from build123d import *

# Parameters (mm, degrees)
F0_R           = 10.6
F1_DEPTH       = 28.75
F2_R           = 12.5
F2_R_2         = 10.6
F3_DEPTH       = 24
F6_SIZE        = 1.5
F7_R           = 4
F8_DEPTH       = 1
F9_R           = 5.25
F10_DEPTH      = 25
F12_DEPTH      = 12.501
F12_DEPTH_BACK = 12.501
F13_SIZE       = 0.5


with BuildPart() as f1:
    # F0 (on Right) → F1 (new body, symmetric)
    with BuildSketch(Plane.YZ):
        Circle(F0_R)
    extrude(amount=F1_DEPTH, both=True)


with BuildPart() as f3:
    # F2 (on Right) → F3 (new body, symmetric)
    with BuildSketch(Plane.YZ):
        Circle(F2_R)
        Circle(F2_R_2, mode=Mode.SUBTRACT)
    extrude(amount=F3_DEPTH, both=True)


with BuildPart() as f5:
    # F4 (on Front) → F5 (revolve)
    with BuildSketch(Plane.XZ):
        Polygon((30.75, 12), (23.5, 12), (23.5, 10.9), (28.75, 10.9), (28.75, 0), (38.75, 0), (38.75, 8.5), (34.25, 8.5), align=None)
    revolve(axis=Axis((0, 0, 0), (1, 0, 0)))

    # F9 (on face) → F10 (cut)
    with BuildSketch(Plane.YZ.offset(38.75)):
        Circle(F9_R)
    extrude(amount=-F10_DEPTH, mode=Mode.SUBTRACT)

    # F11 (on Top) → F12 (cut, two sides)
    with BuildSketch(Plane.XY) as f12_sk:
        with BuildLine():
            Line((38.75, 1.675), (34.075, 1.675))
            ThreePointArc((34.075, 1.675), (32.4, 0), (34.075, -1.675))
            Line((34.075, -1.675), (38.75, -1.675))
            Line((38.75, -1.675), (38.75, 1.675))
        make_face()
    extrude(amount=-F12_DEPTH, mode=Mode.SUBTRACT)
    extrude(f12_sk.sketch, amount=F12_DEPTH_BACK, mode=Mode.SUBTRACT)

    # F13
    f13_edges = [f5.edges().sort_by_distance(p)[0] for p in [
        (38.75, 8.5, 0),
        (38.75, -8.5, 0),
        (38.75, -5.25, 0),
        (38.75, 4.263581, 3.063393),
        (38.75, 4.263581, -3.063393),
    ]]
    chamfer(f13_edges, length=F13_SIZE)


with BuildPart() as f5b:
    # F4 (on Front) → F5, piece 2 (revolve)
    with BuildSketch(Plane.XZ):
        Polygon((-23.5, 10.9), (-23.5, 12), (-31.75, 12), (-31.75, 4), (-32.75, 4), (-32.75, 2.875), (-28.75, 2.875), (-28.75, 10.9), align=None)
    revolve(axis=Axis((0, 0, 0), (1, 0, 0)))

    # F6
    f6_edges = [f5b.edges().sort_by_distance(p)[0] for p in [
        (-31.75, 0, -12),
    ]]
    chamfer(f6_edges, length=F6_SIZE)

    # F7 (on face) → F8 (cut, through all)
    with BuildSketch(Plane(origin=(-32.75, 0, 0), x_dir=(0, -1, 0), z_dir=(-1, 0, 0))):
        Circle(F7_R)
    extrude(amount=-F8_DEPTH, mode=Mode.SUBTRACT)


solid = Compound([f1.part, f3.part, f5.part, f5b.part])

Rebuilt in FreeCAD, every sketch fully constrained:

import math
import FreeCAD as App
import Part
import Sketcher

V = App.Vector
Q = App.Units.Quantity


def edges_at(feature, points):
    """Names of the edges that pass closest to the given points."""
    edges = feature.Shape.Edges
    near = lambda p: min(range(len(edges)), key=lambda i: edges[i].distToShape(Part.Vertex(*p))[0])
    return sorted({f"Edge{near(p) + 1}" for p in points})


def add_polygon(sketch, points):
    """Adds a closed chain of lines whose ends are joined by coincident constraints."""
    first, n = sketch.GeometryCount, len(points)
    for a, b in zip(points, points[1:] + points[:1]):
        sketch.addGeometry(Part.LineSegment(App.Vector(*a, 0), App.Vector(*b, 0)), False)
    for i in range(n):
        sketch.addConstraint(Sketcher.Constraint("Coincident", first + i, 2, first + (i + 1) % n, 1))

doc = App.newDocument("Part")
params = doc.addObject("Spreadsheet::Sheet", "Params")
for row, (alias, value) in enumerate([
    ("sketch1_diameter", "21.2 mm"),
    ("pad1_length", "57.5 mm"),
    ("sketch2_diameter", "25 mm"),
    ("sketch2_diameter2", "21.2 mm"),
    ("pad2_length", "48 mm"),
    ("sketch3_width", "10 mm"),
    ("sketch3_width2", "4.5 mm"),
    ("sketch3_height", "1.1 mm"),
    ("sketch3_height2", "10.9 mm"),
    ("sketch3_height3", "8.5 mm"),
    ("revolution_angle", "360 deg"),
    ("sketch4_diameter", "10.5 mm"),
    ("pocket1_length", "25 mm"),
    ("chamfer_size", "0.5 mm"),
    ("sketch6_width", "1 mm"),
    ("sketch6_width2", "4 mm"),
    ("sketch6_height", "8 mm"),
    ("sketch6_height2", "1.1 mm"),
    ("sketch6_width3", "8.25 mm"),
    ("revolution2_angle", "360 deg"),
    ("chamfer2_size", "1.5 mm"),
    ("sketch7_diameter", "8 mm"),
    ("pocket3_length", "1 mm"),
], start=1):
    params.set(f"A{row}", alias)
    params.set(f"B{row}", "=" + value)
    params.setAlias(f"B{row}", alias)

body = doc.addObject("PartDesign::Body", "Body")

# Sketch on YZ plane
sketch1 = doc.addObject("Sketcher::SketchObject", "Sketch")
body.addObject(sketch1)
sketch1.AttachmentSupport = (doc.YZ_Plane, [""])
sketch1.MapMode = "FlatFace"
sketch1.addGeometry(Part.Circle(V(0, 0, 0), V(0, 0, 1), 11), False)
sketch1.addConstraint(Sketcher.Constraint("Coincident", 0, 3, -1, 1))
sketch1.addConstraint(Sketcher.Constraint("Diameter", 0, 21.2))
sketch1.setExpression("Constraints[1]", "Params.sketch1_diameter")
pad1 = doc.addObject("PartDesign::Pad", "Pad")
body.addObject(pad1)
pad1.Profile = sketch1
pad1.setExpression("Length", "Params.pad1_length")
pad1.Midplane = True
body2 = doc.addObject("PartDesign::Body", "Body001")

# Sketch on YZ plane
sketch2 = doc.addObject("Sketcher::SketchObject", "Sketch001")
body2.addObject(sketch2)
sketch2.AttachmentSupport = (doc.getObject("YZ_Plane001"), [""])
sketch2.MapMode = "FlatFace"
sketch2.addGeometry(Part.Circle(V(0, 0, 0), V(0, 0, 1), 12), False)
sketch2.addGeometry(Part.Circle(V(0, 0, 0), V(0, 0, 1), 11), False)
sketch2.addConstraint(Sketcher.Constraint("Coincident", 0, 3, -1, 1))
sketch2.addConstraint(Sketcher.Constraint("Coincident", 1, 3, -1, 1))
sketch2.addConstraint(Sketcher.Constraint("Diameter", 0, 25.0))
sketch2.addConstraint(Sketcher.Constraint("Diameter", 1, 21.2))
sketch2.setExpression("Constraints[2]", "Params.sketch2_diameter")
sketch2.setExpression("Constraints[3]", "Params.sketch2_diameter2")
pad2 = doc.addObject("PartDesign::Pad", "Pad001")
body2.addObject(pad2)
pad2.Profile = sketch2
pad2.setExpression("Length", "Params.pad2_length")
pad2.Midplane = True
body3 = doc.addObject("PartDesign::Body", "Body002")

# Sketch on XZ plane
sketch3 = doc.addObject("Sketcher::SketchObject", "Sketch002")
body3.addObject(sketch3)
sketch3.AttachmentSupport = (doc.getObject("XZ_Plane002"), [""])
sketch3.MapMode = "FlatFace"
add_polygon(sketch3, [(30.8, 12), (23.5, 12), (23.5, 10.9), (28.8, 10.9), (28.8, 0), (38.8, 0), (38.8, 8.5), (34.2, 8.5)])  # lines 0-7
sketch3.addConstraint(Sketcher.Constraint("Horizontal", 0))
sketch3.addConstraint(Sketcher.Constraint("Vertical", 1))
sketch3.addConstraint(Sketcher.Constraint("Horizontal", 2))
sketch3.addConstraint(Sketcher.Constraint("Vertical", 3))
sketch3.addConstraint(Sketcher.Constraint("Horizontal", 4))
sketch3.addConstraint(Sketcher.Constraint("Vertical", 5))
sketch3.addConstraint(Sketcher.Constraint("Horizontal", 6))
sketch3.addConstraint(Sketcher.Constraint("PointOnObject", 3, 2, -1))
sketch3.addConstraint(Sketcher.Constraint("DistanceX", 4, 1, 4, 2, 10.0))
sketch3.addConstraint(Sketcher.Constraint("Angle", 7, Q("135 deg")))
sketch3.addConstraint(Sketcher.Constraint("DistanceX", 6, 2, 6, 1, 4.5))
sketch3.addConstraint(Sketcher.Constraint("DistanceY", 1, 2, 1, 1, 1.1))
sketch3.addConstraint(Sketcher.Constraint("DistanceY", 3, 2, 3, 1, 10.9))
sketch3.addConstraint(Sketcher.Constraint("DistanceY", 5, 1, 5, 2, 8.5))
sketch3.addConstraint(Sketcher.Constraint("DistanceX", 0, 2, 0, 1, 7.25))
sketch3.addConstraint(Sketcher.Constraint("DistanceX", -1, 1, 0, 2, 23.5))
sketch3.setExpression("Constraints[16]", "Params.sketch3_width")
sketch3.setExpression("Constraints[18]", "Params.sketch3_width2")
sketch3.setExpression("Constraints[19]", "Params.sketch3_height")
sketch3.setExpression("Constraints[20]", "Params.sketch3_height2")
sketch3.setExpression("Constraints[21]", "Params.sketch3_height3")
revolution = doc.addObject("PartDesign::Revolution", "Revolution")
body3.addObject(revolution)
revolution.Profile = sketch3
revolution.ReferenceAxis = (sketch3, ["H_Axis"])
revolution.setExpression("Angle", "Params.revolution_angle")

# Sketch on YZ plane
sketch4 = doc.addObject("Sketcher::SketchObject", "Sketch003")
body3.addObject(sketch4)
sketch4.AttachmentSupport = (doc.getObject("YZ_Plane002"), [""])
sketch4.MapMode = "FlatFace"
sketch4.AttachmentOffset = App.Placement(V(0, 0, 38.75), App.Rotation())
sketch4.addGeometry(Part.Circle(V(0, 0, 0), V(0, 0, 1), 5), False)
sketch4.addConstraint(Sketcher.Constraint("Coincident", 0, 3, -1, 1))
sketch4.addConstraint(Sketcher.Constraint("Diameter", 0, 10.5))
sketch4.setExpression("Constraints[1]", "Params.sketch4_diameter")
pocket1 = doc.addObject("PartDesign::Pocket", "Pocket")
body3.addObject(pocket1)
pocket1.Profile = sketch4
pocket1.setExpression("Length", "Params.pocket1_length")

# Sketch on XY plane
sketch5 = doc.addObject("Sketcher::SketchObject", "Sketch004")
body3.addObject(sketch5)
sketch5.AttachmentSupport = (doc.getObject("XY_Plane002"), [""])
sketch5.MapMode = "FlatFace"
sketch5.addGeometry(Part.LineSegment(V(38.8, 1.7, 0), V(34.1, 1.7, 0)), False)
sketch5.addGeometry(Part.ArcOfCircle(Part.Circle(V(34.1, 0, 0), V(0, 0, 1), 1.7), math.radians(90), math.radians(270)), False)
sketch5.addGeometry(Part.LineSegment(V(34.1, -1.7, 0), V(38.8, -1.7, 0)), False)
sketch5.addGeometry(Part.LineSegment(V(38.8, -1.7, 0), V(38.8, 1.7, 0)), False)
sketch5.addConstraint(Sketcher.Constraint("Tangent", 0, 2, 1, 1))
sketch5.addConstraint(Sketcher.Constraint("Tangent", 1, 2, 2, 1))
sketch5.addConstraint(Sketcher.Constraint("Coincident", 2, 2, 3, 1))
sketch5.addConstraint(Sketcher.Constraint("Coincident", 3, 2, 0, 1))
sketch5.addConstraint(Sketcher.Constraint("Horizontal", 0))
sketch5.addConstraint(Sketcher.Constraint("Horizontal", 2))
sketch5.addConstraint(Sketcher.Constraint("Vertical", 3))
sketch5.addConstraint(Sketcher.Constraint("PointOnObject", 1, 3, -1))
sketch5.addConstraint(Sketcher.Constraint("Radius", 1, 1.675))
sketch5.addConstraint(Sketcher.Constraint("DistanceX", 0, 2, 0, 1, 4.675))
sketch5.addConstraint(Sketcher.Constraint("DistanceX", -1, 1, 2, 2, 38.75))
pocket2 = doc.addObject("PartDesign::Pocket", "Pocket001")
body3.addObject(pocket2)
pocket2.Profile = sketch5
pocket2.Type = "ThroughAll"
pocket2.Midplane = True
doc.recompute()

chamfer = doc.addObject("PartDesign::Chamfer", "Chamfer")
body3.addObject(chamfer)
chamfer.Base = (pocket2, edges_at(pocket2, [
    (38.75, 8.5, 0),
    (38.75, -8.5, 0),
    (38.75, -5.25, 0),
    (38.75, 4.264, 3.063),
    (38.75, 4.264, -3.063),
]))
chamfer.setExpression("Size", "Params.chamfer_size")
body4 = doc.addObject("PartDesign::Body", "Body003")

# Sketch on XZ plane
sketch6 = doc.addObject("Sketcher::SketchObject", "Sketch005")
body4.addObject(sketch6)
sketch6.AttachmentSupport = (doc.getObject("XZ_Plane003"), [""])
sketch6.MapMode = "FlatFace"
add_polygon(sketch6, [(-23.5, 10.9), (-23.5, 12), (-31.8, 12), (-31.8, 4), (-32.8, 4), (-32.8, 2.9), (-28.8, 2.9), (-28.8, 10.9)])  # lines 0-7
sketch6.addConstraint(Sketcher.Constraint("Vertical", 0))
sketch6.addConstraint(Sketcher.Constraint("Horizontal", 1))
sketch6.addConstraint(Sketcher.Constraint("Vertical", 2))
sketch6.addConstraint(Sketcher.Constraint("Horizontal", 3))
sketch6.addConstraint(Sketcher.Constraint("Vertical", 4))
sketch6.addConstraint(Sketcher.Constraint("Horizontal", 5))
sketch6.addConstraint(Sketcher.Constraint("Vertical", 6))
sketch6.addConstraint(Sketcher.Constraint("Horizontal", 7))
sketch6.addConstraint(Sketcher.Constraint("DistanceX", 3, 2, 3, 1, 1.0))
sketch6.addConstraint(Sketcher.Constraint("DistanceX", 5, 1, 5, 2, 4.0))
sketch6.addConstraint(Sketcher.Constraint("DistanceY", 2, 2, 2, 1, 8.0))
sketch6.addConstraint(Sketcher.Constraint("DistanceY", 0, 1, 0, 2, 1.1))
sketch6.addConstraint(Sketcher.Constraint("DistanceY", -1, 1, 0, 2, 12.0))
sketch6.addConstraint(Sketcher.Constraint("DistanceX", 1, 2, 1, 1, 8.25))
sketch6.addConstraint(Sketcher.Constraint("DistanceX", 0, 2, -1, 1, 23.5))
sketch6.addConstraint(Sketcher.Constraint("DistanceY", 4, 2, 4, 1, 1.125))
sketch6.setExpression("Constraints[16]", "Params.sketch6_width")
sketch6.setExpression("Constraints[17]", "Params.sketch6_width2")
sketch6.setExpression("Constraints[18]", "Params.sketch6_height")
sketch6.setExpression("Constraints[19]", "Params.sketch6_height2")
sketch6.setExpression("Constraints[21]", "Params.sketch6_width3")
revolution2 = doc.addObject("PartDesign::Revolution", "Revolution001")
body4.addObject(revolution2)
revolution2.Profile = sketch6
revolution2.ReferenceAxis = (sketch6, ["H_Axis"])
revolution2.setExpression("Angle", "Params.revolution2_angle")
doc.recompute()

chamfer2 = doc.addObject("PartDesign::Chamfer", "Chamfer001")
body4.addObject(chamfer2)
chamfer2.Base = (revolution2, edges_at(revolution2, [(-31.75, 0, -12)]))
chamfer2.setExpression("Size", "Params.chamfer2_size")

# Sketch on YZ plane
sketch7 = doc.addObject("Sketcher::SketchObject", "Sketch006")
body4.addObject(sketch7)
sketch7.AttachmentSupport = (doc.getObject("YZ_Plane003"), [""])
sketch7.MapMode = "FlatFace"
sketch7.AttachmentOffset = App.Placement(V(0, 0, -32.75), App.Rotation())
sketch7.addGeometry(Part.Circle(V(0, 0, 0), V(0, 0, 1), 4), False)
sketch7.addConstraint(Sketcher.Constraint("Coincident", 0, 3, -1, 1))
sketch7.addConstraint(Sketcher.Constraint("Diameter", 0, 8.0))
sketch7.setExpression("Constraints[1]", "Params.sketch7_diameter")
pocket3 = doc.addObject("PartDesign::Pocket", "Pocket002")
body4.addObject(pocket3)
pocket3.Profile = sketch7
pocket3.setExpression("Length", "Params.pocket3_length")
pocket3.Reversed = True

doc.recompute()
